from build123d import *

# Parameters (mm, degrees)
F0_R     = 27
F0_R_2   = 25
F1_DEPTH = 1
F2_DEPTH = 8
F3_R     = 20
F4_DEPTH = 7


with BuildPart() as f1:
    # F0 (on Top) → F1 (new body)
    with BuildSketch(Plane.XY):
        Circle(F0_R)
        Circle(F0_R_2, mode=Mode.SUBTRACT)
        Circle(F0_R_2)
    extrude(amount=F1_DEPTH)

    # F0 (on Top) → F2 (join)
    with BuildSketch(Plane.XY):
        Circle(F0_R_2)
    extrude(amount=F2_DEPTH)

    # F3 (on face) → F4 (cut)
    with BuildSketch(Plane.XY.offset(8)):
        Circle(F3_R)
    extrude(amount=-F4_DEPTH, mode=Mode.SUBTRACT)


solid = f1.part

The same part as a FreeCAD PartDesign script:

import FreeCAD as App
import Part
import Sketcher

doc = App.newDocument("Part")
body = doc.addObject("PartDesign::Body", "Body")

# Sketch on XY plane
sketch1 = body.newObject("Sketcher::SketchObject", "Sketch")
sketch1.AttachmentSupport = (doc.getObject("XY_Plane"), [""])
sketch1.MapMode = "FlatFace"
sketch1.addGeometry(Part.Circle(App.Vector(0, 0, 0), App.Vector(0, 0, 1), 27), False)
sketch1.addConstraint([
    Sketcher.Constraint("Coincident", 0, 3, -1, 1),
    Sketcher.Constraint("Diameter", 0, 54.0),
])
pad1 = body.newObject("PartDesign::Pad", "Pad")
pad1.Profile = sketch1
pad1.Length = 1

# Sketch on XY plane
sketch2 = body.newObject("Sketcher::SketchObject", "Sketch001")
sketch2.AttachmentSupport = (doc.getObject("XY_Plane"), [""])
sketch2.MapMode = "FlatFace"
sketch2.addGeometry(Part.Circle(App.Vector(0, 0, 0), App.Vector(0, 0, 1), 25), False)
sketch2.addConstraint([
    Sketcher.Constraint("Coincident", 0, 3, -1, 1),
    Sketcher.Constraint("Diameter", 0, 50.0),
])
pad2 = body.newObject("PartDesign::Pad", "Pad001")
pad2.Profile = sketch2
pad2.Length = 8

# Sketch on XY plane
sketch3 = body.newObject("Sketcher::SketchObject", "Sketch002")
sketch3.AttachmentSupport = (doc.getObject("XY_Plane"), [""])
sketch3.MapMode = "FlatFace"
sketch3.AttachmentOffset = App.Placement(App.Vector(0, 0, 8), App.Rotation())
sketch3.addGeometry(Part.Circle(App.Vector(0, 0, 0), App.Vector(0, 0, 1), 20), False)
sketch3.addConstraint([
    Sketcher.Constraint("Coincident", 0, 3, -1, 1),
    Sketcher.Constraint("Diameter", 0, 40.0),
])
pocket1 = body.newObject("PartDesign::Pocket", "Pocket")
pocket1.Profile = sketch3
pocket1.Length = 7

doc.recompute()
